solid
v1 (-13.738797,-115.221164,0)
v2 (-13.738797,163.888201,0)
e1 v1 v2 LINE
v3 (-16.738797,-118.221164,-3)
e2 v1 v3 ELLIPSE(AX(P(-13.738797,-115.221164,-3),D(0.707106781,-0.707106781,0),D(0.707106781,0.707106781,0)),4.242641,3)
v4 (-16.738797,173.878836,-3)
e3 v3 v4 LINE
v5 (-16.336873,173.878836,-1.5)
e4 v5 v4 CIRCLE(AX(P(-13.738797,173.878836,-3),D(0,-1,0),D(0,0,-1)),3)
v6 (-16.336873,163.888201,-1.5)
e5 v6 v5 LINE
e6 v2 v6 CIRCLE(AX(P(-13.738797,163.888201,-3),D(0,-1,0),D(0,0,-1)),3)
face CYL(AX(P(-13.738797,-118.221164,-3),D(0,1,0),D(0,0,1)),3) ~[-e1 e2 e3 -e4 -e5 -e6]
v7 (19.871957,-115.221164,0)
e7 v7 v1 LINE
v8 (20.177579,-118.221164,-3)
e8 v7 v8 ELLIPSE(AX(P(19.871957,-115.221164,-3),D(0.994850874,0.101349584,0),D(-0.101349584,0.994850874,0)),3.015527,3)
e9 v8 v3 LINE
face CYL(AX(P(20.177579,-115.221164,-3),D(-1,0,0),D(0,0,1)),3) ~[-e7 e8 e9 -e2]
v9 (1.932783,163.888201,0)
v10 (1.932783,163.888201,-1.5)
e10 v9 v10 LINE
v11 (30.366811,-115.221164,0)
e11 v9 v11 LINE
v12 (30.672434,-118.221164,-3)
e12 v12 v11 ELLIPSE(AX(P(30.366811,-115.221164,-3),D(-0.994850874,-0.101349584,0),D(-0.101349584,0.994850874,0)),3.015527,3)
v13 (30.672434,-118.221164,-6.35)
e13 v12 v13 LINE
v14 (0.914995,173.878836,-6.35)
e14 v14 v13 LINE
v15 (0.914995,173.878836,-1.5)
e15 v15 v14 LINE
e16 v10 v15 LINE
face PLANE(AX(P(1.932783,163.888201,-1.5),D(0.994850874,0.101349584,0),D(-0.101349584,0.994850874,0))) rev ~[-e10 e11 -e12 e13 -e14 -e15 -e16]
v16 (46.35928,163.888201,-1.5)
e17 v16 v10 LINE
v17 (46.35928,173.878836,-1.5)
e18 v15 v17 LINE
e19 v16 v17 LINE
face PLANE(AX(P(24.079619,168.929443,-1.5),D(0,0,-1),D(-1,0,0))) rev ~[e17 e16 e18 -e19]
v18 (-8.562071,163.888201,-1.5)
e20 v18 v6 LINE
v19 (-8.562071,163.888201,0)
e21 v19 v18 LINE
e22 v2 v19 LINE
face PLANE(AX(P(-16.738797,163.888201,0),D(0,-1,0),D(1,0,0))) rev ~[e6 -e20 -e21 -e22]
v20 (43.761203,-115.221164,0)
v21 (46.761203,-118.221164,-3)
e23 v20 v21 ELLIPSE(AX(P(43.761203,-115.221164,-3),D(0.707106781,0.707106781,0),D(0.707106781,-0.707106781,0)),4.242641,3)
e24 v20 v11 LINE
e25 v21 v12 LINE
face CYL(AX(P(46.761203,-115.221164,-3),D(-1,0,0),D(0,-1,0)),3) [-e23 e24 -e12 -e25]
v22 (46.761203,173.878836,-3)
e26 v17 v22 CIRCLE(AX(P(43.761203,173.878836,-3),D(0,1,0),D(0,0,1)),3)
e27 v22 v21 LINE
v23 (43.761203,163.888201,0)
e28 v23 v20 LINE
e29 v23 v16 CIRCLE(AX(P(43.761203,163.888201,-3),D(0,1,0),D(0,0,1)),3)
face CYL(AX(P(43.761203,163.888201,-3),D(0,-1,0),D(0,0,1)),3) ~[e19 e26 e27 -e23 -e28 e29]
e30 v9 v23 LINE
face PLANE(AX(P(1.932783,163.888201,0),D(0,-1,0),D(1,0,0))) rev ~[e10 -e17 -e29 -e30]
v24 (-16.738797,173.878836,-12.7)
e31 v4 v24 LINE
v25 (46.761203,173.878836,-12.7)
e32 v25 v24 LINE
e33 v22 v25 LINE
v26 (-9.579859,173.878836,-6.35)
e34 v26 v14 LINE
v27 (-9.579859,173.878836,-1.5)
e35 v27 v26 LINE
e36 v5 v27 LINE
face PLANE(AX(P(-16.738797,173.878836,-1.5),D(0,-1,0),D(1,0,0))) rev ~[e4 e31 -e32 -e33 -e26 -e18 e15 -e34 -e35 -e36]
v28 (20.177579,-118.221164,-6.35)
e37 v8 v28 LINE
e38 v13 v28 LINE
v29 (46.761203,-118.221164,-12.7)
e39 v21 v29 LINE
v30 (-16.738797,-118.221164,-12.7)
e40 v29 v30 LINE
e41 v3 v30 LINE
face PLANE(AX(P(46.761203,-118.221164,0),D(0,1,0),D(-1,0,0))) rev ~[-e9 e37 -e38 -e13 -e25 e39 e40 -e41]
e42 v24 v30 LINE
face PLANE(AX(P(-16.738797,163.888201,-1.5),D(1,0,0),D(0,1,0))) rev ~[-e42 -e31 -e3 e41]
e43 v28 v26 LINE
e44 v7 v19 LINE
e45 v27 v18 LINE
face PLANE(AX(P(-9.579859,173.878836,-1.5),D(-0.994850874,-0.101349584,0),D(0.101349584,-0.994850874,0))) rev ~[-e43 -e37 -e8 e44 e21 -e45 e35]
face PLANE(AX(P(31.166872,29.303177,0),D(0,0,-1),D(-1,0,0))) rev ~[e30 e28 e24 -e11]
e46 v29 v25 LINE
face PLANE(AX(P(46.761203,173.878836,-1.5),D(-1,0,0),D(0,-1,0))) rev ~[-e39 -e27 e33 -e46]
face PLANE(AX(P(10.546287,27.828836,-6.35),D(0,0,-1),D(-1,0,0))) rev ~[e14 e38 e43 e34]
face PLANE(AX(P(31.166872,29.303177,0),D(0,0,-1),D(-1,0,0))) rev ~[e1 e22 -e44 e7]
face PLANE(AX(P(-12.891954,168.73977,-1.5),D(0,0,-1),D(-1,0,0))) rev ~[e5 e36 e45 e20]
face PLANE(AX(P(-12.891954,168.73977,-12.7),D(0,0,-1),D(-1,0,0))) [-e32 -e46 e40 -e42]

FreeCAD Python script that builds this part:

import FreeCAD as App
import Part
import Sketcher
from FreeCAD import Vector
Q = App.Units.Quantity


def edges_at(feature, points):
    """Names of the edges that pass closest to the given points."""
    edges = feature.Shape.Edges
    near = lambda p: min(range(len(edges)), key=lambda i: edges[i].distToShape(Part.Vertex(*p))[0])
    return sorted({f"Edge{near(p) + 1}" for p in points})

doc = App.newDocument("Part")
body = doc.addObject("PartDesign::Body", "Body")

sketch1 = body.newObject("Sketcher::SketchObject", "Sketch")
sketch1.AttachmentSupport = (doc.getObject("XY_Plane"), [""])
sketch1.MapMode = "FlatFace"
sketch1.addGeometry(Part.LineSegment(Vector(-29, 164, 0), Vector(-74, 164, 0)), False)
sketch1.addGeometry(Part.LineSegment(Vector(-74, 164, 0), Vector(-74, -118, 0)), False)
sketch1.addGeometry(Part.LineSegment(Vector(-74, -118, 0), Vector(-11, -118, 0)), False)
sketch1.addGeometry(Part.LineSegment(Vector(-11, -118, 0), Vector(-11, 164, 0)), False)
sketch1.addGeometry(Part.LineSegment(Vector(-11, 164, 0), Vector(-19, 164, 0)), False)
sketch1.addGeometry(Part.LineSegment(Vector(-19, 164, 0), Vector(-18, 174, 0)), False)
sketch1.addGeometry(Part.LineSegment(Vector(-18, 174, 0), Vector(-28, 174, 0)), False)
sketch1.addGeometry(Part.LineSegment(Vector(-28, 174, 0), Vector(-29, 164, 0)), False)
sketch1.addConstraint(Sketcher.Constraint("Coincident", 0, 2, 1, 1))
sketch1.addConstraint(Sketcher.Constraint("Coincident", 1, 2, 2, 1))
sketch1.addConstraint(Sketcher.Constraint("Coincident", 2, 2, 3, 1))
sketch1.addConstraint(Sketcher.Constraint("Coincident", 3, 2, 4, 1))
sketch1.addConstraint(Sketcher.Constraint("Coincident", 4, 2, 5, 1))
sketch1.addConstraint(Sketcher.Constraint("Coincident", 5, 2, 6, 1))
sketch1.addConstraint(Sketcher.Constraint("Coincident", 6, 2, 7, 1))
sketch1.addConstraint(Sketcher.Constraint("Coincident", 7, 2, 0, 1))
sketch1.addConstraint(Sketcher.Constraint("Horizontal", 0))
sketch1.addConstraint(Sketcher.Constraint("Vertical", 1))
sketch1.addConstraint(Sketcher.Constraint("Horizontal", 2))
sketch1.addConstraint(Sketcher.Constraint("Vertical", 3))
sketch1.addConstraint(Sketcher.Constraint("Horizontal", 4))
sketch1.addConstraint(Sketcher.Constraint("Horizontal", 6))
sketch1.addConstraint(Sketcher.Constraint("Parallel", 5, 7))
sketch1.addConstraint(Sketcher.Constraint("Horizontal", 0, 2, 3, 2))
sketch1.addConstraint(Sketcher.Constraint("DistanceX", 2, 1, 2, 2, Q("2.5 in")))
sketch1.addConstraint(Sketcher.Constraint("DistanceY", 2, 2, 5, 2, Q("11.5 in")))
sketch1.addConstraint(Sketcher.Constraint("DistanceX", 0, 2, 0, 1, Q("44.828421 mm")))
sketch1.addConstraint(Sketcher.Constraint("DistanceY", -1, 1, 0, 2, Q("163.888201 mm")))
sketch1.addConstraint(Sketcher.Constraint("DistanceX", 4, 2, 4, 1, Q("8.176725 mm")))
sketch1.addConstraint(Sketcher.Constraint("DistanceY", 1, 2, 1, 1, Q("282.109365 mm")))
sketch1.addConstraint(Sketcher.Constraint("DistanceX", 4, 2, -1, 1, Q("18.915522 mm")))
sketch1.addConstraint(Sketcher.Constraint("DistanceX", 6, 2, -1, 1, Q("28.392589 mm")))
pad1 = body.newObject("PartDesign::Pad", "Pad")
pad1.Profile = sketch1
pad1.Length = Q("0.5 in")

sketch2 = body.newObject("Sketcher::SketchObject", "Sketch001")
sketch2.AttachmentSupport = (doc.getObject("XY_Plane"), [""])
sketch2.MapMode = "FlatFace"
sketch2.addGeometry(Part.LineSegment(Vector(-18, 174, 0), Vector(-28, 174, 0)), False)
sketch2.addGeometry(Part.LineSegment(Vector(-28, 174, 0), Vector(-58, -118, 0)), False)
sketch2.addGeometry(Part.LineSegment(Vector(-58, -118, 0), Vector(-48, -118, 0)), False)
sketch2.addGeometry(Part.LineSegment(Vector(-48, -118, 0), Vector(-18, 174, 0)), False)
sketch2.addConstraint(Sketcher.Constraint("Coincident", 0, 2, 1, 1))
sketch2.addConstraint(Sketcher.Constraint("Coincident", 1, 2, 2, 1))
sketch2.addConstraint(Sketcher.Constraint("Coincident", 2, 2, 3, 1))
sketch2.addConstraint(Sketcher.Constraint("Coincident", 3, 2, 0, 1))
sketch2.addConstraint(Sketcher.Constraint("Horizontal", 0))
sketch2.addConstraint(Sketcher.Constraint("Horizontal", 2))
sketch2.addConstraint(Sketcher.Constraint("Parallel", 1, 3))
sketch2.addConstraint(Sketcher.Constraint("DistanceY", 1, 2, 0, 2, Q("11.5 in")))
sketch2.addConstraint(Sketcher.Constraint("DistanceX", 0, 2, 0, 1, Q("10.494854 mm")))
sketch2.addConstraint(Sketcher.Constraint("DistanceX", 0, 2, -1, 1, Q("28.392589 mm")))
sketch2.addConstraint(Sketcher.Constraint("DistanceX", 1, 2, 0, 2, Q("29.757438 mm")))
sketch2.addConstraint(Sketcher.Constraint("DistanceY", -1, 1, 0, 2, Q("173.878836 mm")))
pocket1 = body.newObject("PartDesign::Pocket", "Pocket")
pocket1.Profile = sketch2
pocket1.Length = Q("0.25 in")
pocket1.Reversed = True

sketch3 = body.newObject("Sketcher::SketchObject", "Sketch002")
sketch3.AttachmentSupport = (doc.getObject("XY_Plane"), [""])
sketch3.MapMode = "FlatFace"
sketch3.AttachmentOffset = App.Placement(Vector(0, 0, 1.5), App.Rotation())
sketch3.addGeometry(Part.LineSegment(Vector(-28, 174, 0), Vector(-74, 174, 0)), False)
sketch3.addGeometry(Part.LineSegment(Vector(-74, 174, 0), Vector(-74, 164, 0)), False)
sketch3.addGeometry(Part.LineSegment(Vector(-74, 164, 0), Vector(-29, 164, 0)), False)
sketch3.addGeometry(Part.LineSegment(Vector(-29, 164, 0), Vector(-28, 174, 0)), False)
sketch3.addConstraint(Sketcher.Constraint("Coincident", 0, 2, 1, 1))
sketch3.addConstraint(Sketcher.Constraint("Coincident", 1, 2, 2, 1))
sketch3.addConstraint(Sketcher.Constraint("Coincident", 2, 2, 3, 1))
sketch3.addConstraint(Sketcher.Constraint("Coincident", 3, 2, 0, 1))
sketch3.addConstraint(Sketcher.Constraint("Horizontal", 0))
sketch3.addConstraint(Sketcher.Constraint("Vertical", 1))
sketch3.addConstraint(Sketcher.Constraint("Horizontal", 2))
sketch3.addConstraint(Sketcher.Constraint("DistanceX", 2, 1, 2, 2, Q("44.828421 mm")))
sketch3.addConstraint(Sketcher.Constraint("DistanceY", -1, 1, 1, 2, Q("163.888201 mm")))
sketch3.addConstraint(Sketcher.Constraint("DistanceX", 0, 2, 0, 1, Q("45.846208 mm")))
sketch3.addConstraint(Sketcher.Constraint("DistanceY", 1, 2, 1, 1, Q("9.990635 mm")))
sketch3.addConstraint(Sketcher.Constraint("DistanceX", 3, 2, -1, 1, Q("28.392589 mm")))
pad2 = body.newObject("PartDesign::Pad", "Pad001")
pad2.Profile = sketch3
pad2.Length = 11.2

sketch4 = body.newObject("Sketcher::SketchObject", "Sketch003")
sketch4.AttachmentSupport = (doc.getObject("XY_Plane"), [""])
sketch4.MapMode = "FlatFace"
sketch4.AttachmentOffset = App.Placement(Vector(0, 0, 1.5), App.Rotation())
sketch4.addGeometry(Part.LineSegment(Vector(-11, 174, 0), Vector(-18, 174, 0)), False)
sketch4.addGeometry(Part.LineSegment(Vector(-18, 174, 0), Vector(-19, 164, 0)), False)
sketch4.addGeometry(Part.LineSegment(Vector(-19, 164, 0), Vector(-11, 164, 0)), False)
sketch4.addGeometry(Part.LineSegment(Vector(-11, 164, 0), Vector(-11, 174, 0)), False)
sketch4.addConstraint(Sketcher.Constraint("Coincident", 0, 2, 1, 1))
sketch4.addConstraint(Sketcher.Constraint("Coincident", 1, 2, 2, 1))
sketch4.addConstraint(Sketcher.Constraint("Coincident", 2, 2, 3, 1))
sketch4.addConstraint(Sketcher.Constraint("Coincident", 3, 2, 0, 1))
sketch4.addConstraint(Sketcher.Constraint("Horizontal", 0))
sketch4.addConstraint(Sketcher.Constraint("Horizontal", 2))
sketch4.addConstraint(Sketcher.Constraint("Vertical", 3))
sketch4.addConstraint(Sketcher.Constraint("DistanceY", -1, 1, 1, 2, Q("163.888201 mm")))
sketch4.addConstraint(Sketcher.Constraint("DistanceX", 0, 2, 0, 1, Q("7.158938 mm")))
sketch4.addConstraint(Sketcher.Constraint("DistanceX", 2, 1, 2, 2, Q("8.176725 mm")))
sketch4.addConstraint(Sketcher.Constraint("DistanceY", 3, 1, 3, 2, Q("9.990635 mm")))
sketch4.addConstraint(Sketcher.Constraint("DistanceX", 1, 2, -1, 1, Q("18.915522 mm")))
pad3 = body.newObject("PartDesign::Pad", "Pad002")
pad3.Profile = sketch4
pad3.Length = 11.2
doc.recompute()

fillet = body.newObject("PartDesign::Fillet", "Fillet")
fillet.Base = (pad3, edges_at(pad3, [
    (-74.239, 22.834, 0),
    (-10.739, 22.834, 0),
    (-29.197, -118.221, 0),
    (-66.194, -118.221, 0),
]))
fillet.Radius = 3
body2 = doc.addObject("PartDesign::Body", "Body001")
doc.recompute()

body.Placement = App.Placement(Vector(-27.477593, 0, 0), App.Rotation(Vector(0, -1, 0), 180))
boolean = body2.newObject("PartDesign::Boolean", "Boolean")
boolean.Type = "Fuse"
boolean.addObjects([body])

doc.recompute()
